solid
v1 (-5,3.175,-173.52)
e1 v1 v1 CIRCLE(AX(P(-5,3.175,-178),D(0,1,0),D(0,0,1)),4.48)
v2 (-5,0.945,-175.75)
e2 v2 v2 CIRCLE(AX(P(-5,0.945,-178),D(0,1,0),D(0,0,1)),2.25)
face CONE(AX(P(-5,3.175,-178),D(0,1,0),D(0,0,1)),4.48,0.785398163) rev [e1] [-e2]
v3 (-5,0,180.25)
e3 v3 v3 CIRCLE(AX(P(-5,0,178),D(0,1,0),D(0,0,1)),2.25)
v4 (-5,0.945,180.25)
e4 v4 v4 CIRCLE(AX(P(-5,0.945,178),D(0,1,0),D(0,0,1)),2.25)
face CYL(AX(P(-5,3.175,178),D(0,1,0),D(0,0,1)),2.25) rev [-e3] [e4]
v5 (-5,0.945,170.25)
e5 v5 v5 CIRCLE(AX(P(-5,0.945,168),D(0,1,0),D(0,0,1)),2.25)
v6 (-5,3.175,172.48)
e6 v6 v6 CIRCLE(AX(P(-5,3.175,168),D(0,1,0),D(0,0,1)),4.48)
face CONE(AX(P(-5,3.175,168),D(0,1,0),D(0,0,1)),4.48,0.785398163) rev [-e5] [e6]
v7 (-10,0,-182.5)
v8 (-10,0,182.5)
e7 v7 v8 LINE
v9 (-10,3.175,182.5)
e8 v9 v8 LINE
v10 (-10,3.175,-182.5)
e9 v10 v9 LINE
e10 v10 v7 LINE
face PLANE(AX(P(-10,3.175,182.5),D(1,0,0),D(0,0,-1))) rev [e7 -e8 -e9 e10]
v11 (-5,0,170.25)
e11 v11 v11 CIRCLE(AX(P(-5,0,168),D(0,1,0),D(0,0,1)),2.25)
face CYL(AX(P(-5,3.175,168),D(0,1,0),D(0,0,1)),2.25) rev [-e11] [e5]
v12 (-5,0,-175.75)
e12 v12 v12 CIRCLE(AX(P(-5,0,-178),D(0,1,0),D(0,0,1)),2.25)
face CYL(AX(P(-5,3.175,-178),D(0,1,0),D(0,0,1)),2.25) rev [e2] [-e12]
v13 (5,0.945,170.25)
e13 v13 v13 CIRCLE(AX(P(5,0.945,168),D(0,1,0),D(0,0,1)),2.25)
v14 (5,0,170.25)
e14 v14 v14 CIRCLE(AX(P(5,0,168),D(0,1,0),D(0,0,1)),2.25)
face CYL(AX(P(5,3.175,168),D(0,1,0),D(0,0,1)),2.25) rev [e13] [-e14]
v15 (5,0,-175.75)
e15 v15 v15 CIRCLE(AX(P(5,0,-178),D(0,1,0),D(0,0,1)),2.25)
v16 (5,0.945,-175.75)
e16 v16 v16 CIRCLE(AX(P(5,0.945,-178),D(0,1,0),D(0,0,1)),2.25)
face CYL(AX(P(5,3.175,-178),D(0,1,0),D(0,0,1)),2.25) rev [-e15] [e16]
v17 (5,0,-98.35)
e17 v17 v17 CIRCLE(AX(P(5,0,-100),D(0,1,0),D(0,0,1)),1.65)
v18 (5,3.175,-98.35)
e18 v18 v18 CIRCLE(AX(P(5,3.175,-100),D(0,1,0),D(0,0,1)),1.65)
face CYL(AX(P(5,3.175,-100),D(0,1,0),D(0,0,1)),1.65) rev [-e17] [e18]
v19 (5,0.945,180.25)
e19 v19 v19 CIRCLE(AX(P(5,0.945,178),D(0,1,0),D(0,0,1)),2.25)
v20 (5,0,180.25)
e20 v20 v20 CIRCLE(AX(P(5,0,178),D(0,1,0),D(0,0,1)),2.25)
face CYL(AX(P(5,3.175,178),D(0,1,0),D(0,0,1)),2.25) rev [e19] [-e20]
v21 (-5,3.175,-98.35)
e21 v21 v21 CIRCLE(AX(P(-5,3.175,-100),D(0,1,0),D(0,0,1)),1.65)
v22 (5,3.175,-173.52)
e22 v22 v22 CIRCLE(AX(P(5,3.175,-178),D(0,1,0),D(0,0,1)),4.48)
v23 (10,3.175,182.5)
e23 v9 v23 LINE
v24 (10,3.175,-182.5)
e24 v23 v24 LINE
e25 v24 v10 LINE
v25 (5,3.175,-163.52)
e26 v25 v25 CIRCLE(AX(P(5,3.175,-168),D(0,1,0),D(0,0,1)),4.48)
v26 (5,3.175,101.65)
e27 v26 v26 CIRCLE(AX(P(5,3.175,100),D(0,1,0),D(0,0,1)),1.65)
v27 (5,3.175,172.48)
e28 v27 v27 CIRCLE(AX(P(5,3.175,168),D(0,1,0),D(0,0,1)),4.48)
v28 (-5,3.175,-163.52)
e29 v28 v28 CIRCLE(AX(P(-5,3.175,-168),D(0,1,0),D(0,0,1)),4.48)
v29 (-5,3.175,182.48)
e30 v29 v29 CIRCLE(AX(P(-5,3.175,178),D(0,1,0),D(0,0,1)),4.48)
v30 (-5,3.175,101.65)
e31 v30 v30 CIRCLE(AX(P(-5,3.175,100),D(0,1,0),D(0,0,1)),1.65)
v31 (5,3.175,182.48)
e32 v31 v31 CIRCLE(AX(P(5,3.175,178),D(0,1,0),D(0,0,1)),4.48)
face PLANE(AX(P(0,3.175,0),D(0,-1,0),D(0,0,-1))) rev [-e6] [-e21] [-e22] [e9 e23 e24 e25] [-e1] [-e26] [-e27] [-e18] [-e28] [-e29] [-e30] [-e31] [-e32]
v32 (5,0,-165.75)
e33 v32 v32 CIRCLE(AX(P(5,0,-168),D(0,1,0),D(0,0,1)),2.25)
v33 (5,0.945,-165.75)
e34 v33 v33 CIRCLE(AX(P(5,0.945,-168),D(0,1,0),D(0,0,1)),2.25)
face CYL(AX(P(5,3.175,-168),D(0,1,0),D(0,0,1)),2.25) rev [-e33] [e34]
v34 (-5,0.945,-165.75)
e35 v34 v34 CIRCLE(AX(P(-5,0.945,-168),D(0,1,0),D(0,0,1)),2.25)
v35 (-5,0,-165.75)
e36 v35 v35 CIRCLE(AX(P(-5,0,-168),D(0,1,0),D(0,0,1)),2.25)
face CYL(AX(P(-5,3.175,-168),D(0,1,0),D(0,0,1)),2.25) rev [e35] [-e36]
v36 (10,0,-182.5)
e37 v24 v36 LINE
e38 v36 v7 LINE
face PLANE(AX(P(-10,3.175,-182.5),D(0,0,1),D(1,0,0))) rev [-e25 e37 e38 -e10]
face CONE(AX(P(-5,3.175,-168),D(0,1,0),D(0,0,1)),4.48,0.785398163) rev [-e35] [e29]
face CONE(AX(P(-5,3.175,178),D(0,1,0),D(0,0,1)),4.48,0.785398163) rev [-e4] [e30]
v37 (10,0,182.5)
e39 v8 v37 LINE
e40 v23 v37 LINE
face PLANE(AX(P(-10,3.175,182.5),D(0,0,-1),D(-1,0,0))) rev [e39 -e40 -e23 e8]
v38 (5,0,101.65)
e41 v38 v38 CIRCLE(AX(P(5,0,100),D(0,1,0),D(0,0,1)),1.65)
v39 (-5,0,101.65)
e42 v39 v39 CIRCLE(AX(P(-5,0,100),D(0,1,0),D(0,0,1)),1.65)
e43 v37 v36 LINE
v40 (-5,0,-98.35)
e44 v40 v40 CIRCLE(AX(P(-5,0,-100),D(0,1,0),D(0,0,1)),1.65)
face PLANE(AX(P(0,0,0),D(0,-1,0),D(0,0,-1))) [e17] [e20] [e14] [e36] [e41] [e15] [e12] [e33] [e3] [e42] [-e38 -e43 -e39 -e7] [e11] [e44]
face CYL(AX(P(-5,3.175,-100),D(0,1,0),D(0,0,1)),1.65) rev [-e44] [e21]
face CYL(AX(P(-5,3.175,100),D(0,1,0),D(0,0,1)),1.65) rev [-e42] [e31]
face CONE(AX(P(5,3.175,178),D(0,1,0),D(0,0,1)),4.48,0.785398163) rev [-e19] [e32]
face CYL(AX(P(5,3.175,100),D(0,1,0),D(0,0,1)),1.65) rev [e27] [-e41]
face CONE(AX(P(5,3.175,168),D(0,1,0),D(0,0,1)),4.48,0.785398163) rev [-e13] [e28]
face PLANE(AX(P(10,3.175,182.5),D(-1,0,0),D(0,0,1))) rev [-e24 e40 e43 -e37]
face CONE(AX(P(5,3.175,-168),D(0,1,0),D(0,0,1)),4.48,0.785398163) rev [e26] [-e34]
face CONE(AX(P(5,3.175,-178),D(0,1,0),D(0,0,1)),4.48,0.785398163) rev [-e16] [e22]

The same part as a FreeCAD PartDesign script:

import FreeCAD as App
import Part
import Sketcher

V = App.Vector
Q = App.Units.Quantity

doc = App.newDocument("Part")
body = doc.addObject("PartDesign::Body", "Body")

sketch1 = body.newObject("Sketcher::SketchObject", "Sketch")
sketch1.AttachmentSupport = (doc.getObject("XZ_Plane"), [""])
sketch1.MapMode = "FlatFace"
sketch1.addGeometry(Part.LineSegment(V(-10, -182, 0), V(-10, 182, 0)), False)
sketch1.addGeometry(Part.LineSegment(V(-10, 182, 0), V(10, 182, 0)), False)
sketch1.addGeometry(Part.LineSegment(V(10, 182, 0), V(10, -182, 0)), False)
sketch1.addGeometry(Part.LineSegment(V(10, -182, 0), V(-10, -182, 0)), False)
sketch1.addConstraint(Sketcher.Constraint("Coincident", 0, 2, 1, 1))
sketch1.addConstraint(Sketcher.Constraint("Coincident", 1, 2, 2, 1))
sketch1.addConstraint(Sketcher.Constraint("Coincident", 2, 2, 3, 1))
sketch1.addConstraint(Sketcher.Constraint("Coincident", 3, 2, 0, 1))
sketch1.addConstraint(Sketcher.Constraint("Vertical", 0))
sketch1.addConstraint(Sketcher.Constraint("Horizontal", 1))
sketch1.addConstraint(Sketcher.Constraint("Vertical", 2))
sketch1.addConstraint(Sketcher.Constraint("Horizontal", 3))
sketch1.addConstraint(Sketcher.Constraint("Symmetric", 0, 2, 2, 2, -1, 1))
sketch1.addConstraint(Sketcher.Constraint("DistanceX", 1, 1, 1, 2, 20.0))
sketch1.addConstraint(Sketcher.Constraint("DistanceY", 0, 1, 0, 2, 365.0))
pad1 = body.newObject("PartDesign::Pad", "Pad")
pad1.Profile = sketch1
pad1.Length = 3.175
pad1.Reversed = True

sketch2 = body.newObject("Sketcher::SketchObject", "Sketch001")
sketch2.AttachmentSupport = (doc.getObject("YZ_Plane"), [""])
sketch2.MapMode = "FlatFace"
sketch2.AttachmentOffset = App.Placement(V(0, 0, 5), App.Rotation())
sketch2.addGeometry(Part.LineSegment(V(0, 168, 0), V(3.2, 168, 0)), False)
sketch2.addGeometry(Part.LineSegment(V(3.2, 168, 0), V(3.2, 172.5, 0)), False)
sketch2.addGeometry(Part.LineSegment(V(3.2, 172.5, 0), V(0.9, 170.2, 0)), False)
sketch2.addGeometry(Part.LineSegment(V(0.9, 170.2, 0), V(0, 170.2, 0)), False)
sketch2.addGeometry(Part.LineSegment(V(0, 170.2, 0), V(0, 168, 0)), False)
sketch2.addGeometry(Part.LineSegment(V(3.2, 168, 0), V(0, 168, 0)), True)
sketch2.addConstraint(Sketcher.Constraint("Coincident", 0, 2, 1, 1))
sketch2.addConstraint(Sketcher.Constraint("Coincident", 1, 2, 2, 1))
sketch2.addConstraint(Sketcher.Constraint("Coincident", 2, 2, 3, 1))
sketch2.addConstraint(Sketcher.Constraint("Coincident", 3, 2, 4, 1))
sketch2.addConstraint(Sketcher.Constraint("Coincident", 4, 2, 0, 1))
sketch2.addConstraint(Sketcher.Constraint("Horizontal", 0))
sketch2.addConstraint(Sketcher.Constraint("Vertical", 1))
sketch2.addConstraint(Sketcher.Constraint("Horizontal", 3))
sketch2.addConstraint(Sketcher.Constraint("Vertical", 4))
sketch2.addConstraint(Sketcher.Constraint("Horizontal", 5))
sketch2.addConstraint(Sketcher.Constraint("Coincident", 5, 1, 0, 2))
sketch2.addConstraint(Sketcher.Constraint("PointOnObject", 3, 2, -2))
sketch2.addConstraint(Sketcher.Constraint("PointOnObject", 5, 2, -2))
sketch2.addConstraint(Sketcher.Constraint("Angle", 2, Q("-135 deg")))
sketch2.addConstraint(Sketcher.Constraint("DistanceY", -1, 1, 0, 2, 168.0))
sketch2.addConstraint(Sketcher.Constraint("DistanceY", 1, 1, 1, 2, 4.48))
sketch2.addConstraint(Sketcher.Constraint("DistanceY", 4, 2, 4, 1, 2.25))
sketch2.addConstraint(Sketcher.Constraint("DistanceX", 0, 1, 0, 2, 3.175))
groove = body.newObject("PartDesign::Groove", "Groove")
groove.Profile = sketch2
groove.ReferenceAxis = (sketch2, ["Axis0"])
groove.Angle = 360
doc.recompute()

datumline = body.newObject("PartDesign::Line", "DatumLine")
datumline.Placement = App.Placement(V(0, 0, 0), App.Rotation(V(0, 0, 1), V(-0.707106781, 0, 0.707106781)))
linearpattern = body.newObject("PartDesign::LinearPattern", "LinearPattern")
linearpattern.Originals = [groove]
linearpattern.Direction = (datumline, [""])
linearpattern.Mode = "offset"
linearpattern.Offset = 14.142136
linearpattern.Occurrences = 2
body.Tip = linearpattern
doc.recompute()

linearpattern2 = body.newObject("PartDesign::LinearPattern", "LinearPattern001")
linearpattern2.Originals = [groove]
linearpattern2.Direction = (doc.getObject("X_Axis"), [""])
linearpattern2.Mode = "offset"
linearpattern2.Offset = 10
linearpattern2.Occurrences = 2
linearpattern2.Reversed = True
body.Tip = linearpattern2
doc.recompute()

linearpattern3 = body.newObject("PartDesign::LinearPattern", "LinearPattern002")
linearpattern3.Originals = [groove]
linearpattern3.Direction = (doc.getObject("Z_Axis"), [""])
linearpattern3.Mode = "offset"
linearpattern3.Offset = 10
linearpattern3.Occurrences = 2
body.Tip = linearpattern3
doc.recompute()

linearpattern4 = body.newObject("PartDesign::LinearPattern", "LinearPattern003")
linearpattern4.Originals = [groove]
linearpattern4.Direction = (doc.getObject("Z_Axis"), [""])
linearpattern4.Mode = "offset"
linearpattern4.Offset = 346
linearpattern4.Occurrences = 2
linearpattern4.Reversed = True
body.Tip = linearpattern4
doc.recompute()

datumline2 = body.newObject("PartDesign::Line", "DatumLine001")
datumline2.Placement = App.Placement(V(0, 0, 0), App.Rotation(V(0, 0, 1), V(-0.029748732, 0, -0.999557409)))
linearpattern5 = body.newObject("PartDesign::LinearPattern", "LinearPattern004")
linearpattern5.Originals = [groove]
linearpattern5.Direction = (datumline2, [""])
linearpattern5.Mode = "offset"
linearpattern5.Offset = 336.148777
linearpattern5.Occurrences = 2
body.Tip = linearpattern5
doc.recompute()

datumline3 = body.newObject("PartDesign::Line", "DatumLine002")
datumline3.Placement = App.Placement(V(0, 0, 0), App.Rotation(V(0, 0, 1), V(-0.028889671, 0, -0.999582606)))
linearpattern6 = body.newObject("PartDesign::LinearPattern", "LinearPattern005")
linearpattern6.Originals = [groove]
linearpattern6.Direction = (datumline3, [""])
linearpattern6.Mode = "offset"
linearpattern6.Offset = 346.144479
linearpattern6.Occurrences = 2
body.Tip = linearpattern6
doc.recompute()

linearpattern7 = body.newObject("PartDesign::LinearPattern", "LinearPattern006")
linearpattern7.Originals = [groove]
linearpattern7.Direction = (doc.getObject("Z_Axis"), [""])
linearpattern7.Mode = "offset"
linearpattern7.Offset = 336
linearpattern7.Occurrences = 2
linearpattern7.Reversed = True
body.Tip = linearpattern7

sketch3 = body.newObject("Sketcher::SketchObject", "Sketch002")
sketch3.AttachmentSupport = (doc.getObject("XZ_Plane"), [""])
sketch3.MapMode = "FlatFace"
sketch3.AttachmentOffset = App.Placement(V(0, 0, -3.175), App.Rotation())
sketch3.addGeometry(Part.Circle(V(-5, 100, 0), V(0, 0, 1), 1.6), False)
sketch3.addGeometry(Part.Circle(V(-5, -100, 0), V(0, 0, 1), 1.6), False)
sketch3.addGeometry(Part.Circle(V(5, -100, 0), V(0, 0, 1), 1.6), False)
sketch3.addGeometry(Part.Circle(V(5, 100, 0), V(0, 0, 1), 1.6), False)
sketch3.addConstraint(Sketcher.Constraint("Equal", 0, 1))
sketch3.addConstraint(Sketcher.Constraint("Equal", 1, 2))
sketch3.addConstraint(Sketcher.Constraint("Equal", 2, 3))
sketch3.addConstraint(Sketcher.Constraint("Symmetric", 0, 3, 2, 3, -1, 1))
sketch3.addConstraint(Sketcher.Constraint("Symmetric", 1, 3, 3, 3, -1, 1))
sketch3.addConstraint(Sketcher.Constraint("Symmetric", 1, 3, 2, 3, -2))
sketch3.addConstraint(Sketcher.Constraint("Diameter", 0, 3.3))
sketch3.addConstraint(Sketcher.Constraint("DistanceX", 0, 3, -1, 1, 5.0))
sketch3.addConstraint(Sketcher.Constraint("DistanceY", -1, 1, 0, 3, 100.0))
doc.recompute()
hole = body.newObject("PartDesign::Hole", "Hole")
hole.Profile = sketch3
hole.ThreadType = "None"
hole.Diameter = 3.3
hole.DepthType = "ThroughAll"
hole.Reversed = True

doc.recompute()
